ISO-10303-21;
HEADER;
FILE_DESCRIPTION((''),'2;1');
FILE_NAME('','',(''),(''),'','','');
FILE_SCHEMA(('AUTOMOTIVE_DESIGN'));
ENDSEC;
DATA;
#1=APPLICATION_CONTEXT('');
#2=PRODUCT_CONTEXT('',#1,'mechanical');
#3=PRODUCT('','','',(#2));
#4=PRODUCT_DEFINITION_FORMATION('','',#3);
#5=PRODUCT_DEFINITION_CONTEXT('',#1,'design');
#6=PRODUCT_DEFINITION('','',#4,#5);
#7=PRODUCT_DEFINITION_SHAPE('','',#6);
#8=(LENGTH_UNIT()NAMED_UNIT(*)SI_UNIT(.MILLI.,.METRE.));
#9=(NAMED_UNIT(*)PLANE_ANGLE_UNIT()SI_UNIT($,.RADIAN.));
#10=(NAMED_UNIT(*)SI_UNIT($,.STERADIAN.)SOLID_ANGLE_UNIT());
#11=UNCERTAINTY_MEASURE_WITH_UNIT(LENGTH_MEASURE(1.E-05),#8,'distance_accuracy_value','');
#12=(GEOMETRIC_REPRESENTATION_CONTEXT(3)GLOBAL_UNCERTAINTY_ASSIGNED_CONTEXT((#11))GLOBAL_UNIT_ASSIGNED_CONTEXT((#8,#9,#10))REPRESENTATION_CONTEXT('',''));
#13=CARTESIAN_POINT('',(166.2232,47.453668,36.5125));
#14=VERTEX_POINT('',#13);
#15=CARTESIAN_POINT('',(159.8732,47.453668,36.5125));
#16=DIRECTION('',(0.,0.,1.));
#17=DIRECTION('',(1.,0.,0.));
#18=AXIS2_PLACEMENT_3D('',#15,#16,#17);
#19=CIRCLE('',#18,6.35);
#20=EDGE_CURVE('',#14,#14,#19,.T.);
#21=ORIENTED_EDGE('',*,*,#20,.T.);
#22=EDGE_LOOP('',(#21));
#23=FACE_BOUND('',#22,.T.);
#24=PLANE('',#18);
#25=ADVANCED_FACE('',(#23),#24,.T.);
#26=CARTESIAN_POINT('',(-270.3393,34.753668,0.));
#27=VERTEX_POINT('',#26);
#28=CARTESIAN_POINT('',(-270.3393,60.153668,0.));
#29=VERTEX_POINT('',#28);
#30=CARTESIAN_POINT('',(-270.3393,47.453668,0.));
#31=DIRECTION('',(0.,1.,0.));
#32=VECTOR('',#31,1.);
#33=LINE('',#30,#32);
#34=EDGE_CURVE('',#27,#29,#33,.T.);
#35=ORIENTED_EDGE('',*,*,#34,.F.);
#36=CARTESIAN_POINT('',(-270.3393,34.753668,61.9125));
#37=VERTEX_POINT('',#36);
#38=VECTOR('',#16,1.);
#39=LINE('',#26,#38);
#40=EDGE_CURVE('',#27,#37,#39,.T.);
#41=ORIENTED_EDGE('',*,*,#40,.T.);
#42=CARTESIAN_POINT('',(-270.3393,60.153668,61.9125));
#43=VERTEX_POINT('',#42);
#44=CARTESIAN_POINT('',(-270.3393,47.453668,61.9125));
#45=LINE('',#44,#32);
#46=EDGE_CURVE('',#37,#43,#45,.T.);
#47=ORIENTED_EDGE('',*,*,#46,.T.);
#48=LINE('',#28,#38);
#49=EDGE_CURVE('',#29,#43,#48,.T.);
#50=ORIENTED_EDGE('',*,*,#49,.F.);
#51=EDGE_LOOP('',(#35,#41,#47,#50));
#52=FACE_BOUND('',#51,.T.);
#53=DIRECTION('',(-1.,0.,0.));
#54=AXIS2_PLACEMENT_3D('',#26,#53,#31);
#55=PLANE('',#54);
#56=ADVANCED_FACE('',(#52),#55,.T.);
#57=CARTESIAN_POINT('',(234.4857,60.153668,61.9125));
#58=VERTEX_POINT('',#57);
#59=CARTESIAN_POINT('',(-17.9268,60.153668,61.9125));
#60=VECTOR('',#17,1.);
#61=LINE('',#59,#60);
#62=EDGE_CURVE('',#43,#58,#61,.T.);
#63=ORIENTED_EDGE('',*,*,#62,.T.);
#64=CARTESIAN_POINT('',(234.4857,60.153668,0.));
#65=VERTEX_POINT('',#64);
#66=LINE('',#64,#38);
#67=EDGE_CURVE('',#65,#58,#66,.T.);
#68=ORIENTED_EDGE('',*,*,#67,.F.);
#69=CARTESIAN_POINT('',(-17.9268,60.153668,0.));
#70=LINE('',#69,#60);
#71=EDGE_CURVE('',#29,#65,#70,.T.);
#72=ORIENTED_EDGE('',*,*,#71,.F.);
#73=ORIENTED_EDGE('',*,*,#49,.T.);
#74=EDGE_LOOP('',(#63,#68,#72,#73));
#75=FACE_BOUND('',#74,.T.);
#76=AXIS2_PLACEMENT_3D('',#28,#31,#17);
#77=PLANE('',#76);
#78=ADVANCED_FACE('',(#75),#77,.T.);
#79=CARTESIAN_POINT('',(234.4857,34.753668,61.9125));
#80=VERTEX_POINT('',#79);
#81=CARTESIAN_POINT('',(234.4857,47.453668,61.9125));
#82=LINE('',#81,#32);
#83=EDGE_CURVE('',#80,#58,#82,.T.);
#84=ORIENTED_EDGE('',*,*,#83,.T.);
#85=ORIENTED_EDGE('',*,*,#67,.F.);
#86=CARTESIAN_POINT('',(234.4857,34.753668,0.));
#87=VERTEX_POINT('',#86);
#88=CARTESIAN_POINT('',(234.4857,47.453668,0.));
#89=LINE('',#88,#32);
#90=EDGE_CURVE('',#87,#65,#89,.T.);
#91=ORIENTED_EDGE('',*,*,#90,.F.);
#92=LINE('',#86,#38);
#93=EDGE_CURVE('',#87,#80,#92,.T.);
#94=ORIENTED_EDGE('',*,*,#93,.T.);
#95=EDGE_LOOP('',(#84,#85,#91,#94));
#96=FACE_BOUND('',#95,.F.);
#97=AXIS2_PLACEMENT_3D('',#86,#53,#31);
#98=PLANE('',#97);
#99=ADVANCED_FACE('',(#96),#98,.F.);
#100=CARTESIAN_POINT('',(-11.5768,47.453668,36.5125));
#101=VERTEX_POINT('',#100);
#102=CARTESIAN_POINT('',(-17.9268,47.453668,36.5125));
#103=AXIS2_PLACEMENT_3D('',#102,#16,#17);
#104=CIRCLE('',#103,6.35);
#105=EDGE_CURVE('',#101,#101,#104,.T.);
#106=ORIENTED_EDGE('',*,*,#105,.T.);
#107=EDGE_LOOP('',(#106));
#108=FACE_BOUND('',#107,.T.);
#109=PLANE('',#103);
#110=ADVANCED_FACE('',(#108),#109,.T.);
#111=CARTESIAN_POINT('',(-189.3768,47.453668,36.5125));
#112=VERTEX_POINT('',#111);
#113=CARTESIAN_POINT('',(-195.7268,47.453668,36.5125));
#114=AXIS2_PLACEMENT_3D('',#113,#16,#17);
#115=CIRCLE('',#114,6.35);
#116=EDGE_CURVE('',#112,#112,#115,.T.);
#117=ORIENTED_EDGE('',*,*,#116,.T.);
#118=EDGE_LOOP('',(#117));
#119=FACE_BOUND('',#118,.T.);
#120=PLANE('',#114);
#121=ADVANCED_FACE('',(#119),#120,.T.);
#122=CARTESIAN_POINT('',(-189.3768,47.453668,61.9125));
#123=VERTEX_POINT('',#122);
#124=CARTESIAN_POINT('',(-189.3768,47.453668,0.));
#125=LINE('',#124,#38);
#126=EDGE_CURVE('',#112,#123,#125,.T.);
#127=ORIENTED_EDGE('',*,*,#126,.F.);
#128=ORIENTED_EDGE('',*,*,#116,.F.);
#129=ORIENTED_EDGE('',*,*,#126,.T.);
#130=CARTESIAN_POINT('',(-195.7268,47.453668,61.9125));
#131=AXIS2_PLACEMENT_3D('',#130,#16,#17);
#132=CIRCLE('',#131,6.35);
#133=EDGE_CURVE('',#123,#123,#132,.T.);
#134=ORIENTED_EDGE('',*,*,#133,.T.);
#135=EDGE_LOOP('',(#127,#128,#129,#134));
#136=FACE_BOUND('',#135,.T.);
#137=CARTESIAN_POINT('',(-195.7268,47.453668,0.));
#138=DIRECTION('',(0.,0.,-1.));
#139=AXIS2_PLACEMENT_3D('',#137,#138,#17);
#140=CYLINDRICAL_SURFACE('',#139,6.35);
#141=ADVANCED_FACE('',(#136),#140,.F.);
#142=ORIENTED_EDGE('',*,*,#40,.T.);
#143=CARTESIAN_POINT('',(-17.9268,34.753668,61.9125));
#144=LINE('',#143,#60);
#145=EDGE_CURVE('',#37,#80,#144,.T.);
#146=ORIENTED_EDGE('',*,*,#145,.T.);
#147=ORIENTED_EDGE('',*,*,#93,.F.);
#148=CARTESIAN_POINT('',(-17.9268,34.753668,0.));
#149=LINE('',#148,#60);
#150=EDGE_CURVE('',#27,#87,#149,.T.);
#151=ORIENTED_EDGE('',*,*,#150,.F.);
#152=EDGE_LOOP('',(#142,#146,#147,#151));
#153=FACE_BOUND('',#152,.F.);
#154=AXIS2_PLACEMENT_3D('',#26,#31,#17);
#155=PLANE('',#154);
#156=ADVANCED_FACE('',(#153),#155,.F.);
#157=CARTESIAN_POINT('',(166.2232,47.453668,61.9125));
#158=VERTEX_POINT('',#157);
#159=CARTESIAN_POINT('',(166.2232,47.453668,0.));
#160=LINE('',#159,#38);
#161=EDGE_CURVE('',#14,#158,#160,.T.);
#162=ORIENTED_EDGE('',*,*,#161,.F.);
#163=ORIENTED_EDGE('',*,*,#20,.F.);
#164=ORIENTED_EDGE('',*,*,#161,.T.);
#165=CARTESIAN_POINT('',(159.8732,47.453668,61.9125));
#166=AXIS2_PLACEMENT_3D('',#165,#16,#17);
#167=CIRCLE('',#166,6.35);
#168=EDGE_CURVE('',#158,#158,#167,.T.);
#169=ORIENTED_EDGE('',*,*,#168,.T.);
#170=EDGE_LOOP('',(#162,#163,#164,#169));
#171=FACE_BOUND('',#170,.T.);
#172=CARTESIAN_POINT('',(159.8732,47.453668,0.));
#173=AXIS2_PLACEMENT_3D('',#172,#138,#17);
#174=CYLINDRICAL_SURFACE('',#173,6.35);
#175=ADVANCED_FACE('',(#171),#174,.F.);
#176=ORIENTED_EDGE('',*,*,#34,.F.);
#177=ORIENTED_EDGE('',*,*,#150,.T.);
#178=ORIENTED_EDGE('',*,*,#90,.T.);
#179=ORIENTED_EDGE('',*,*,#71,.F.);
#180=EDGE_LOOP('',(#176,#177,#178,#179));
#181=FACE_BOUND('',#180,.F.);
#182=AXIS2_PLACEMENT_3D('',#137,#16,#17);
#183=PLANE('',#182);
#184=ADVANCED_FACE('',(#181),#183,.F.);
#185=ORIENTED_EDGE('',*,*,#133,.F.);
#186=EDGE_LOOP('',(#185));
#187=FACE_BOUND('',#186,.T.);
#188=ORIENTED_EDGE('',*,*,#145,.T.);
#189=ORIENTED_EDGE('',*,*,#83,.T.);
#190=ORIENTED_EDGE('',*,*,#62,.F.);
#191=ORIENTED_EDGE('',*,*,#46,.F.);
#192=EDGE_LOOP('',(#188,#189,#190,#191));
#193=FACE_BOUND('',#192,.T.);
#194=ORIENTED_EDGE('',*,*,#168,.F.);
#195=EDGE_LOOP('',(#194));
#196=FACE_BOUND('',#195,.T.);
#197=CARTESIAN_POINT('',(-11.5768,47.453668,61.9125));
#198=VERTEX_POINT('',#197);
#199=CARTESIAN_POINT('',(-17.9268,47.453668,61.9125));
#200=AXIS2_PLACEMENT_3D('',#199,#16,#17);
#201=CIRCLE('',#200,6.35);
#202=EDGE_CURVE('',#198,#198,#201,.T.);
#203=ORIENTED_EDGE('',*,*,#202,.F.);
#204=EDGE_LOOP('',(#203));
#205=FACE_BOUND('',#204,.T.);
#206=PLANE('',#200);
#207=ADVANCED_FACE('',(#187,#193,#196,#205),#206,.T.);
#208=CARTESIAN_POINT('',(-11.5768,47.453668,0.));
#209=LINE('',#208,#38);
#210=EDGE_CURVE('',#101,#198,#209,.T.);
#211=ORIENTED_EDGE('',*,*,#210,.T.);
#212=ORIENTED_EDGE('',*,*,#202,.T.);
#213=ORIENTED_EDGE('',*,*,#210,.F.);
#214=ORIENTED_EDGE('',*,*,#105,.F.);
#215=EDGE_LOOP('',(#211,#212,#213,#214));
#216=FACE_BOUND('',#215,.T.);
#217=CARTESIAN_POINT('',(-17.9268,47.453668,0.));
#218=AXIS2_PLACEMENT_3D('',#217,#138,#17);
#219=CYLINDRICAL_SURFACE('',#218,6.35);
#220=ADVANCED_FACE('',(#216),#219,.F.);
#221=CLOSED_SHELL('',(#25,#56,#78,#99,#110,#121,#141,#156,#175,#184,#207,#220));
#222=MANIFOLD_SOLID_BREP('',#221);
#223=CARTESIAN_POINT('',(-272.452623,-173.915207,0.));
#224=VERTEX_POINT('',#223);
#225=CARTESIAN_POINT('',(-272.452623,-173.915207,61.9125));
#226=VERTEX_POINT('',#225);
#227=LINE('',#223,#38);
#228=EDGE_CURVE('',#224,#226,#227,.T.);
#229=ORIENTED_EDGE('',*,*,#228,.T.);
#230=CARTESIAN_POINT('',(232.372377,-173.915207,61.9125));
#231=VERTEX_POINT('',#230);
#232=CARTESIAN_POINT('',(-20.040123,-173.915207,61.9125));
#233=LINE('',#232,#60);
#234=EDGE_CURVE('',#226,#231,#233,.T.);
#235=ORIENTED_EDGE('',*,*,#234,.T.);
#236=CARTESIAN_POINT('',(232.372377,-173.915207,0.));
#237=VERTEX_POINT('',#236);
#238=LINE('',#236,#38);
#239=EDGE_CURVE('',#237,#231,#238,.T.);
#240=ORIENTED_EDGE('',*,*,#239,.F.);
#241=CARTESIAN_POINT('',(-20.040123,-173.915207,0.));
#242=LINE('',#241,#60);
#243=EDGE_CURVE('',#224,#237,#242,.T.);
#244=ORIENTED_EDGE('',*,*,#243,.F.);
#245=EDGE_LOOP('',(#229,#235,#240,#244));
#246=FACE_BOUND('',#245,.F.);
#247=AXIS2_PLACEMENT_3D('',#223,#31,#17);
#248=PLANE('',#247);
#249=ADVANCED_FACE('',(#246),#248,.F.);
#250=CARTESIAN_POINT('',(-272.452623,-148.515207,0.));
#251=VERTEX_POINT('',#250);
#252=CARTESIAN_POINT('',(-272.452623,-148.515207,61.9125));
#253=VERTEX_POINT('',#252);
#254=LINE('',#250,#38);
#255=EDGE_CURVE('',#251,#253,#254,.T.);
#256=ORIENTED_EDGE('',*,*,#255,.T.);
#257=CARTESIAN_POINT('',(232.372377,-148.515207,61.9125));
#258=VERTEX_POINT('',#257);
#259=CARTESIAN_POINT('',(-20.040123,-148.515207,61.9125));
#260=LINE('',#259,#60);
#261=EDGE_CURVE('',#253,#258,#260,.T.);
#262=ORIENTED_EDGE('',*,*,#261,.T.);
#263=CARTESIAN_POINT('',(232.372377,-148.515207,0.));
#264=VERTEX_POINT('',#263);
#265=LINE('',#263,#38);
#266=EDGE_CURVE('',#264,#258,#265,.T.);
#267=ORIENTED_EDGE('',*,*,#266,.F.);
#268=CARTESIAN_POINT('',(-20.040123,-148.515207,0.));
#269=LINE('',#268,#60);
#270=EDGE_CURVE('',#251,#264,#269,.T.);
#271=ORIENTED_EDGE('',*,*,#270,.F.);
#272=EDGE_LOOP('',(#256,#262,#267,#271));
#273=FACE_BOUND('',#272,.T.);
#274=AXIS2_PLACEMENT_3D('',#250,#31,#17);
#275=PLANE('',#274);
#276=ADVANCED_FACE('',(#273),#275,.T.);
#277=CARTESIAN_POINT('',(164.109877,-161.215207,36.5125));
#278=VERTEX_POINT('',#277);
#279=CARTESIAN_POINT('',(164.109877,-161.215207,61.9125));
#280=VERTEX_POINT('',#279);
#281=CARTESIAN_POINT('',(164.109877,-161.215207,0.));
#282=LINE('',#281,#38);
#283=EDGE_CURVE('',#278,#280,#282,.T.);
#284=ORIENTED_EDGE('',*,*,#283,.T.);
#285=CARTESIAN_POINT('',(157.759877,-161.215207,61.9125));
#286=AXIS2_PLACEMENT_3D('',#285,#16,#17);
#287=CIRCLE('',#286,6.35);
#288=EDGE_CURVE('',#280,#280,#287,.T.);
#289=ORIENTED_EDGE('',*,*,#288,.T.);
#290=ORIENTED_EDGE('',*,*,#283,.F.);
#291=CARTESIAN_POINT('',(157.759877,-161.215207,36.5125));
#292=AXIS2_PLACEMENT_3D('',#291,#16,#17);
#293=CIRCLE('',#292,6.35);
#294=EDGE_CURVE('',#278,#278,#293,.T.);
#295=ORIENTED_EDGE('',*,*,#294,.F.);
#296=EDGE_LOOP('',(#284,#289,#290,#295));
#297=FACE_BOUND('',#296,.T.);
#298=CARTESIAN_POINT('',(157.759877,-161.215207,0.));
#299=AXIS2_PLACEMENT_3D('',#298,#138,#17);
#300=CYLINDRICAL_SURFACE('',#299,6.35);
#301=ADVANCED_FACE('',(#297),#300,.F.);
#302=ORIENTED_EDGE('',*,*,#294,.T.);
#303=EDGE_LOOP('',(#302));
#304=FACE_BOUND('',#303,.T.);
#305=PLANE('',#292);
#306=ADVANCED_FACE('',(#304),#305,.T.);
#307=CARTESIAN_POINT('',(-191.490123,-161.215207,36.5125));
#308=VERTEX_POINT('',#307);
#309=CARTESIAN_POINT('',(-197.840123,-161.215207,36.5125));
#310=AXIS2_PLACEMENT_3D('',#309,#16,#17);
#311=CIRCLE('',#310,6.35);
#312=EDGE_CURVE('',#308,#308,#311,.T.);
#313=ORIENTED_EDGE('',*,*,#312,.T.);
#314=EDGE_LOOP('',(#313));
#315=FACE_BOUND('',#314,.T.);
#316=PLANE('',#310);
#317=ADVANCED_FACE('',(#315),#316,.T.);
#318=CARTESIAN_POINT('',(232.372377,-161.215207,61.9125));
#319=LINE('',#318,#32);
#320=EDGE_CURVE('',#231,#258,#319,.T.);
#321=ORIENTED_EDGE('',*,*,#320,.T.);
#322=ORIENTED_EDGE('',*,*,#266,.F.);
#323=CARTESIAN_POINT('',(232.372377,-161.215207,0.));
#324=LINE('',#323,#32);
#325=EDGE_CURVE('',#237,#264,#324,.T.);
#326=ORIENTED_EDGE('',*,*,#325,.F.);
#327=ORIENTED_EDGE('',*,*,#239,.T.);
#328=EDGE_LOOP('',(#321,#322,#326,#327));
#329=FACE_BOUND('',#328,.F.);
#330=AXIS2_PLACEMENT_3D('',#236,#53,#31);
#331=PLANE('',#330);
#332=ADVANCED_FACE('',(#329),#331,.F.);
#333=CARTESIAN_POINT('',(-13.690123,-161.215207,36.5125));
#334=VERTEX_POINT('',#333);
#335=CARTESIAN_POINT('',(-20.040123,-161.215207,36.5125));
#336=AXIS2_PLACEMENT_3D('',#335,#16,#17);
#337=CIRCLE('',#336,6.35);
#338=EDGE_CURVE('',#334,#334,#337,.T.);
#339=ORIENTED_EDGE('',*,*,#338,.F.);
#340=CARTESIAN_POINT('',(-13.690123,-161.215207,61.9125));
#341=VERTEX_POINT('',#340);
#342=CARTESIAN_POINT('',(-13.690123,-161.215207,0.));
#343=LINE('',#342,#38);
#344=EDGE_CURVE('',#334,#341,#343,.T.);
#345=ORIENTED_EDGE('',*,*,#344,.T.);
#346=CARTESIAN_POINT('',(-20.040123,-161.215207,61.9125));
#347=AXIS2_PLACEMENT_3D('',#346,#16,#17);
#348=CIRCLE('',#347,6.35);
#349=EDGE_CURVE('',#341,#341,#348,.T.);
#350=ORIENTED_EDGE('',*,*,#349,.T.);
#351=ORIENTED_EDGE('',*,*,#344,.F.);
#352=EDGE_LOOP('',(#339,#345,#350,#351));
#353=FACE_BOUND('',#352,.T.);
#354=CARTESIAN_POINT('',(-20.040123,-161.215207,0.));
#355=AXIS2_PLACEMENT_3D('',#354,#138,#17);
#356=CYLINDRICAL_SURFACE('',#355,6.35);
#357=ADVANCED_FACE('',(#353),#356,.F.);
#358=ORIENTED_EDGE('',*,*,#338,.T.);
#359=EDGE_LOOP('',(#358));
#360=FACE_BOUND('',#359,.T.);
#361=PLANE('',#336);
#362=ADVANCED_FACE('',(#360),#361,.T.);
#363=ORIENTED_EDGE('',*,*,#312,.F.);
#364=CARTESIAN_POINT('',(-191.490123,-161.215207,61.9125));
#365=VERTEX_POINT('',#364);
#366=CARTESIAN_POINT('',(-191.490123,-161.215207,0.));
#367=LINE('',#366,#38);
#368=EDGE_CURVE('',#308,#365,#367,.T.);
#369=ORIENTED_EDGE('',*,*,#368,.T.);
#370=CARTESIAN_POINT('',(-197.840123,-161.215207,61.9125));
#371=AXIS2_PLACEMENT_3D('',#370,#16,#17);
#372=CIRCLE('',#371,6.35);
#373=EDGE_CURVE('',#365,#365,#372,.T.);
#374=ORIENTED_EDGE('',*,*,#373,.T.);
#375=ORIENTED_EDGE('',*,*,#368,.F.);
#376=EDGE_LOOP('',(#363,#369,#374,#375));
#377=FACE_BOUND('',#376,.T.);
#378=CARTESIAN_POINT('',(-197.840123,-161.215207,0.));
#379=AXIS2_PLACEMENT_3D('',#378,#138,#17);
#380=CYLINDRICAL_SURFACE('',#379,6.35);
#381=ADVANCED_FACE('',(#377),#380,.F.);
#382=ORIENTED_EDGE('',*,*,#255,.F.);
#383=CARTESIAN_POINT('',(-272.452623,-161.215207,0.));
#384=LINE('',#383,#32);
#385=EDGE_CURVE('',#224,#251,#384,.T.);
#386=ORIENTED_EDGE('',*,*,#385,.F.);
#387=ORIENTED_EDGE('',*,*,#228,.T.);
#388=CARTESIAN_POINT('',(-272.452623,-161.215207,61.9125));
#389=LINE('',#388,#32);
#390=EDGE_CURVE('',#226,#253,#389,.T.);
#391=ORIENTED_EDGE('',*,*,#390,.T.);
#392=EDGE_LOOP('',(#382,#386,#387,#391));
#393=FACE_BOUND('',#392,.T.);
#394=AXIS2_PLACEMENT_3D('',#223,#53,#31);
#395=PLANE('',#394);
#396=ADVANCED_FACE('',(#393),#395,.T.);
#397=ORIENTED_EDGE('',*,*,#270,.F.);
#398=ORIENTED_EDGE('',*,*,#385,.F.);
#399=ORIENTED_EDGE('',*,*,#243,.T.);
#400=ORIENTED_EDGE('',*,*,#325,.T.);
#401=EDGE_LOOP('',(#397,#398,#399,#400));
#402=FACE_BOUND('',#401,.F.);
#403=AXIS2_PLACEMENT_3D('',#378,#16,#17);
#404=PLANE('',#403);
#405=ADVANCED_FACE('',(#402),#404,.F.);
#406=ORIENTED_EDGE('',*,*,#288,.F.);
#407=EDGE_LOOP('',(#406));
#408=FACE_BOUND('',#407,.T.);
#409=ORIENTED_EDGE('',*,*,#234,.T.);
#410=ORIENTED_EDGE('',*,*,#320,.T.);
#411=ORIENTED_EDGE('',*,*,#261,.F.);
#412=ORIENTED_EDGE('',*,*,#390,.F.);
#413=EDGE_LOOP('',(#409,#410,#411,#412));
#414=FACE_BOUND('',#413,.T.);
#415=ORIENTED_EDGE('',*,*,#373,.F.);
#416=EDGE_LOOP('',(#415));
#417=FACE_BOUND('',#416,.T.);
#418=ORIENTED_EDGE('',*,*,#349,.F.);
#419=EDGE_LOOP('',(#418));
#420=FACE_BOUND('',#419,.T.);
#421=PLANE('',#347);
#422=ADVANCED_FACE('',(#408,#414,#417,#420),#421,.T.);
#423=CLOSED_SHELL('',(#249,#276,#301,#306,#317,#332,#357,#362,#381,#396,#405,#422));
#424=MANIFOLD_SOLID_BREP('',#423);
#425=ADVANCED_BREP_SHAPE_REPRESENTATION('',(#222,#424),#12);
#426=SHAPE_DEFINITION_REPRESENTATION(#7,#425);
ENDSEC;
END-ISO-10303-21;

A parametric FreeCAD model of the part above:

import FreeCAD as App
import Part
import Sketcher
from FreeCAD import Vector
Q = App.Units.Quantity

doc = App.newDocument("Part")
body = doc.addObject("PartDesign::Body", "Body")

# Sketch on XY plane
sketch1 = body.newObject("Sketcher::SketchObject", "Sketch")
sketch1.AttachmentSupport = (doc.getObject("XY_Plane"), [""])
sketch1.MapMode = "FlatFace"
sketch1.addGeometry([
    Part.LineSegment(Vector(-270, 60, 0), Vector(-270, 35, 0)),  # 0
    Part.LineSegment(Vector(-270, 35, 0), Vector(234, 35, 0)),  # 1
    Part.LineSegment(Vector(234, 35, 0), Vector(234, 60, 0)),  # 2
    Part.LineSegment(Vector(234, 60, 0), Vector(-270, 60, 0)),  # 3
    Part.Circle(Vector(-196, 47, 0), Vector(0, 0, 1), 6),  # 4
    Part.Circle(Vector(-18, 47, 0), Vector(0, 0, 1), 6),  # 5
    Part.Circle(Vector(160, 47, 0), Vector(0, 0, 1), 6),  # 6
], False)
sketch1.addConstraint([
    Sketcher.Constraint("Coincident", 0, 2, 1, 1),
    Sketcher.Constraint("Coincident", 1, 2, 2, 1),
    Sketcher.Constraint("Coincident", 2, 2, 3, 1),
    Sketcher.Constraint("Coincident", 3, 2, 0, 1),
    Sketcher.Constraint("Vertical", 0),
    Sketcher.Constraint("Horizontal", 1),
    Sketcher.Constraint("Vertical", 2),
    Sketcher.Constraint("Horizontal", 3),
    Sketcher.Constraint("Equal", 4, 5),
    Sketcher.Constraint("Equal", 5, 6),
    Sketcher.Constraint("Horizontal", 4, 3, 5, 3),
    Sketcher.Constraint("Horizontal", 5, 3, 6, 3),
    Sketcher.Constraint("Diameter", 4, Q("0.5 in")),
    Sketcher.Constraint("DistanceY", 0, 2, 0, 1, Q("1 in")),
    Sketcher.Constraint("DistanceX", 4, 3, 5, 3, Q("7 in")),
    Sketcher.Constraint("DistanceX", 5, 3, 6, 3, Q("7 in")),
    Sketcher.Constraint("DistanceY", 0, 2, 4, 3, Q("0.5 in")),
    Sketcher.Constraint("DistanceX", 1, 1, 1, 2, Q("19.875 in")),
    Sketcher.Constraint("DistanceX", 0, 2, 4, 3, Q("2.9375 in")),
    Sketcher.Constraint("DistanceX", 4, 3, -1, 1, Q("195.7268 mm")),
    Sketcher.Constraint("DistanceY", -1, 1, 4, 3, Q("47.453668 mm")),
])
pad1 = body.newObject("PartDesign::Pad", "Pad")
pad1.Profile = sketch1
pad1.Length = Q("2.4375 in")

# Sketch on XY plane
sketch2 = body.newObject("Sketcher::SketchObject", "Sketch001")
sketch2.AttachmentSupport = (doc.getObject("XY_Plane"), [""])
sketch2.MapMode = "FlatFace"
sketch2.addGeometry([
    Part.Circle(Vector(-196, 47, 0), Vector(0, 0, 1), 6),
    Part.Circle(Vector(-18, 47, 0), Vector(0, 0, 1), 6),
    Part.Circle(Vector(160, 47, 0), Vector(0, 0, 1), 6),
], False)
sketch2.addConstraint([
    Sketcher.Constraint("Equal", 0, 1),
    Sketcher.Constraint("Equal", 1, 2),
    Sketcher.Constraint("Horizontal", 0, 3, 1, 3),
    Sketcher.Constraint("Horizontal", 1, 3, 2, 3),
    Sketcher.Constraint("Diameter", 0, Q("0.5 in")),
    Sketcher.Constraint("DistanceX", 0, 3, 1, 3, Q("7 in")),
    Sketcher.Constraint("DistanceX", 1, 3, 2, 3, Q("7 in")),
    Sketcher.Constraint("DistanceX", 0, 3, -1, 1, Q("195.7268 mm")),
    Sketcher.Constraint("DistanceY", -1, 1, 0, 3, Q("47.453668 mm")),
])
pad2 = body.newObject("PartDesign::Pad", "Pad001")
pad2.Profile = sketch2
pad2.Length = Q("1.4375 in")
body2 = doc.addObject("PartDesign::Body", "Body001")

# Sketch on XY plane
sketch3 = body2.newObject("Sketcher::SketchObject", "Sketch002")
sketch3.AttachmentSupport = (doc.getObject("XY_Plane001"), [""])
sketch3.MapMode = "FlatFace"
sketch3.addGeometry([
    Part.LineSegment(Vector(-272, -149, 0), Vector(-272, -174, 0)),  # 0
    Part.LineSegment(Vector(-272, -174, 0), Vector(232, -174, 0)),  # 1
    Part.LineSegment(Vector(232, -174, 0), Vector(232, -149, 0)),  # 2
    Part.LineSegment(Vector(232, -149, 0), Vector(-272, -149, 0)),  # 3
    Part.Circle(Vector(-198, -161, 0), Vector(0, 0, 1), 6),  # 4
    Part.Circle(Vector(-20, -161, 0), Vector(0, 0, 1), 6),  # 5
    Part.Circle(Vector(158, -161, 0), Vector(0, 0, 1), 6),  # 6
], False)
sketch3.addConstraint([
    Sketcher.Constraint("Coincident", 0, 2, 1, 1),
    Sketcher.Constraint("Coincident", 1, 2, 2, 1),
    Sketcher.Constraint("Coincident", 2, 2, 3, 1),
    Sketcher.Constraint("Coincident", 3, 2, 0, 1),
    Sketcher.Constraint("Vertical", 0),
    Sketcher.Constraint("Horizontal", 1),
    Sketcher.Constraint("Vertical", 2),
    Sketcher.Constraint("Horizontal", 3),
    Sketcher.Constraint("Equal", 4, 5),
    Sketcher.Constraint("Equal", 5, 6),
    Sketcher.Constraint("Horizontal", 4, 3, 5, 3),
    Sketcher.Constraint("Horizontal", 5, 3, 6, 3),
    Sketcher.Constraint("Diameter", 4, Q("0.5 in")),
    Sketcher.Constraint("DistanceY", 0, 2, 0, 1, Q("1 in")),
    Sketcher.Constraint("DistanceX", 4, 3, 5, 3, Q("7 in")),
    Sketcher.Constraint("DistanceX", 5, 3, 6, 3, Q("7 in")),
    Sketcher.Constraint("DistanceY", 0, 2, 4, 3, Q("0.5 in")),
    Sketcher.Constraint("DistanceX", 1, 1, 1, 2, Q("19.875 in")),
    Sketcher.Constraint("DistanceX", 0, 2, 4, 3, Q("2.9375 in")),
    Sketcher.Constraint("DistanceX", 4, 3, -1, 1, Q("197.840123 mm")),
    Sketcher.Constraint("DistanceY", 4, 3, -1, 1, Q("161.215207 mm")),
])
pad3 = body2.newObject("PartDesign::Pad", "Pad002")
pad3.Profile = sketch3
pad3.Length = Q("2.4375 in")

# Sketch on XY plane
sketch4 = body2.newObject("Sketcher::SketchObject", "Sketch003")
sketch4.AttachmentSupport = (doc.getObject("XY_Plane001"), [""])
sketch4.MapMode = "FlatFace"
sketch4.addGeometry([
    Part.Circle(Vector(-198, -161, 0), Vector(0, 0, 1), 6),
    Part.Circle(Vector(-20, -161, 0), Vector(0, 0, 1), 6),
    Part.Circle(Vector(158, -161, 0), Vector(0, 0, 1), 6),
], False)
sketch4.addConstraint([
    Sketcher.Constraint("Equal", 0, 1),
    Sketcher.Constraint("Equal", 1, 2),
    Sketcher.Constraint("Horizontal", 0, 3, 1, 3),
    Sketcher.Constraint("Horizontal", 1, 3, 2, 3),
    Sketcher.Constraint("Diameter", 0, Q("0.5 in")),
    Sketcher.Constraint("DistanceX", 0, 3, 1, 3, Q("7 in")),
    Sketcher.Constraint("DistanceX", 1, 3, 2, 3, Q("7 in")),
    Sketcher.Constraint("DistanceX", 0, 3, -1, 1, Q("197.840123 mm")),
    Sketcher.Constraint("DistanceY", 0, 3, -1, 1, Q("161.215207 mm")),
])
pad4 = body2.newObject("PartDesign::Pad", "Pad003")
pad4.Profile = sketch4
pad4.Length = Q("1.4375 in")

doc.recompute()
